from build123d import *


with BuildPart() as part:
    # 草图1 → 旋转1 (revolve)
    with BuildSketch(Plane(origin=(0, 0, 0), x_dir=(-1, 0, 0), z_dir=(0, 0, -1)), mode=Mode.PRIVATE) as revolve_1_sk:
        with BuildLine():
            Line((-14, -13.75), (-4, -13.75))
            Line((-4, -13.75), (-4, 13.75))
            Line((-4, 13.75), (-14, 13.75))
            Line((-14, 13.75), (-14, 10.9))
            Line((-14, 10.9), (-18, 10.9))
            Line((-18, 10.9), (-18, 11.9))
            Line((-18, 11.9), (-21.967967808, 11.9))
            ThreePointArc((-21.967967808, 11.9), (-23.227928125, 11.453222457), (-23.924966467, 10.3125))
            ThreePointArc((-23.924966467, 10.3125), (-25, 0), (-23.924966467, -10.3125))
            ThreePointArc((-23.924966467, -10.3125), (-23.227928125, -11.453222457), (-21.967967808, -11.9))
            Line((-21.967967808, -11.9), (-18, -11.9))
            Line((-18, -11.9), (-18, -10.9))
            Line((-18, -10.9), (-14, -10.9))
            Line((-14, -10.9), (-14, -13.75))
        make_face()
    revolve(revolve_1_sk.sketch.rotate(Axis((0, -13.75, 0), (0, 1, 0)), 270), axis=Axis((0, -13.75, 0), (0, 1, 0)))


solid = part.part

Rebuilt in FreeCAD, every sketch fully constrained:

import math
import FreeCAD as App
import Part
import Sketcher
from FreeCAD import Vector

doc = App.newDocument("Part")
body = doc.addObject("PartDesign::Body", "Body")

# Sketch on XY plane
sketch1 = body.newObject("Sketcher::SketchObject", "Sketch")
sketch1.AttachmentSupport = (doc.getObject("XY_Plane"), [""])
sketch1.MapMode = "FlatFace"
sketch1.addGeometry([
    Part.LineSegment(Vector(14, -13.75, 0), Vector(4, -13.75, 0)),  # 0
    Part.LineSegment(Vector(4, -13.75, 0), Vector(4, 13.75, 0)),  # 1
    Part.LineSegment(Vector(4, 13.75, 0), Vector(14, 13.75, 0)),  # 2
    Part.LineSegment(Vector(14, 13.75, 0), Vector(14, 10.9, 0)),  # 3
    Part.LineSegment(Vector(14, 10.9, 0), Vector(18, 10.9, 0)),  # 4
    Part.LineSegment(Vector(18, 10.9, 0), Vector(18, 11.9, 0)),  # 5
    Part.LineSegment(Vector(18, 11.9, 0), Vector(21.967968, 11.9, 0)),  # 6
    Part.ArcOfCircle(Part.Circle(Vector(21.967968, 9.9, 0), Vector(0, 0, 1), 2), math.radians(11.902683), math.radians(90)),  # 7
    Part.ArcOfCircle(Part.Circle(Vector(-25, 0, 0), Vector(0, 0, 1), 50), math.radians(-11.902683), math.radians(11.902683)),  # 8
    Part.ArcOfCircle(Part.Circle(Vector(21.967968, -9.9, 0), Vector(0, 0, 1), 2), math.radians(-90), math.radians(-11.902683)),  # 9
    Part.LineSegment(Vector(21.967968, -11.9, 0), Vector(18, -11.9, 0)),  # 10
    Part.LineSegment(Vector(18, -11.9, 0), Vector(18, -10.9, 0)),  # 11
    Part.LineSegment(Vector(18, -10.9, 0), Vector(14, -10.9, 0)),  # 12
    Part.LineSegment(Vector(14, -10.9, 0), Vector(14, -13.75, 0)),  # 13
], False)
sketch1.addConstraint([
    Sketcher.Constraint("Coincident", 0, 2, 1, 1),
    Sketcher.Constraint("Coincident", 1, 2, 2, 1),
    Sketcher.Constraint("Coincident", 2, 2, 3, 1),
    Sketcher.Constraint("Coincident", 3, 2, 4, 1),
    Sketcher.Constraint("Coincident", 4, 2, 5, 1),
    Sketcher.Constraint("Coincident", 5, 2, 6, 1),
    Sketcher.Constraint("Tangent", 6, 2, 7, 2),
    Sketcher.Constraint("Tangent", 7, 1, 8, 2),
    Sketcher.Constraint("Tangent", 8, 1, 9, 2),
    Sketcher.Constraint("Tangent", 9, 1, 10, 1),
    Sketcher.Constraint("Coincident", 10, 2, 11, 1),
    Sketcher.Constraint("Coincident", 11, 2, 12, 1),
    Sketcher.Constraint("Coincident", 12, 2, 13, 1),
    Sketcher.Constraint("Coincident", 13, 2, 0, 1),
    Sketcher.Constraint("Horizontal", 0),
    Sketcher.Constraint("Vertical", 1),
    Sketcher.Constraint("Horizontal", 2),
    Sketcher.Constraint("Vertical", 3),
    Sketcher.Constraint("Horizontal", 4),
    Sketcher.Constraint("Vertical", 5),
    Sketcher.Constraint("Horizontal", 6),
    Sketcher.Constraint("Horizontal", 10),
    Sketcher.Constraint("Vertical", 11),
    Sketcher.Constraint("Horizontal", 12),
    Sketcher.Constraint("Vertical", 13),
    Sketcher.Constraint("Equal", 7, 9),
    Sketcher.Constraint("Symmetric", 7, 3, 9, 3, -1),
    Sketcher.Constraint("Symmetric", 4, 2, 11, 2, -1),
    Sketcher.Constraint("Symmetric", 2, 2, 13, 2, -1),
    Sketcher.Constraint("Radius", 7, 2.0),
    Sketcher.Constraint("Radius", 8, 50.0),
    Sketcher.Constraint("DistanceX", 0, 2, 0, 1, 10.0),
    Sketcher.Constraint("DistanceX", 4, 1, 4, 2, 4.0),
    Sketcher.Constraint("DistanceY", 5, 1, 5, 2, 1.0),
    Sketcher.Constraint("DistanceY", 1, 1, 1, 2, 27.5),
    Sketcher.Constraint("DistanceX", 8, 3, -1, 1, 25.0),
    Sketcher.Constraint("DistanceX", -1, 1, 0, 2, 4.0),
    Sketcher.Constraint("DistanceY", 3, 2, 3, 1, 2.85),
])
revolution = body.newObject("PartDesign::Revolution", "Revolution")
revolution.Profile = sketch1
revolution.ReferenceAxis = (sketch1, ["V_Axis"])
revolution.Angle = 360

doc.recompute()
